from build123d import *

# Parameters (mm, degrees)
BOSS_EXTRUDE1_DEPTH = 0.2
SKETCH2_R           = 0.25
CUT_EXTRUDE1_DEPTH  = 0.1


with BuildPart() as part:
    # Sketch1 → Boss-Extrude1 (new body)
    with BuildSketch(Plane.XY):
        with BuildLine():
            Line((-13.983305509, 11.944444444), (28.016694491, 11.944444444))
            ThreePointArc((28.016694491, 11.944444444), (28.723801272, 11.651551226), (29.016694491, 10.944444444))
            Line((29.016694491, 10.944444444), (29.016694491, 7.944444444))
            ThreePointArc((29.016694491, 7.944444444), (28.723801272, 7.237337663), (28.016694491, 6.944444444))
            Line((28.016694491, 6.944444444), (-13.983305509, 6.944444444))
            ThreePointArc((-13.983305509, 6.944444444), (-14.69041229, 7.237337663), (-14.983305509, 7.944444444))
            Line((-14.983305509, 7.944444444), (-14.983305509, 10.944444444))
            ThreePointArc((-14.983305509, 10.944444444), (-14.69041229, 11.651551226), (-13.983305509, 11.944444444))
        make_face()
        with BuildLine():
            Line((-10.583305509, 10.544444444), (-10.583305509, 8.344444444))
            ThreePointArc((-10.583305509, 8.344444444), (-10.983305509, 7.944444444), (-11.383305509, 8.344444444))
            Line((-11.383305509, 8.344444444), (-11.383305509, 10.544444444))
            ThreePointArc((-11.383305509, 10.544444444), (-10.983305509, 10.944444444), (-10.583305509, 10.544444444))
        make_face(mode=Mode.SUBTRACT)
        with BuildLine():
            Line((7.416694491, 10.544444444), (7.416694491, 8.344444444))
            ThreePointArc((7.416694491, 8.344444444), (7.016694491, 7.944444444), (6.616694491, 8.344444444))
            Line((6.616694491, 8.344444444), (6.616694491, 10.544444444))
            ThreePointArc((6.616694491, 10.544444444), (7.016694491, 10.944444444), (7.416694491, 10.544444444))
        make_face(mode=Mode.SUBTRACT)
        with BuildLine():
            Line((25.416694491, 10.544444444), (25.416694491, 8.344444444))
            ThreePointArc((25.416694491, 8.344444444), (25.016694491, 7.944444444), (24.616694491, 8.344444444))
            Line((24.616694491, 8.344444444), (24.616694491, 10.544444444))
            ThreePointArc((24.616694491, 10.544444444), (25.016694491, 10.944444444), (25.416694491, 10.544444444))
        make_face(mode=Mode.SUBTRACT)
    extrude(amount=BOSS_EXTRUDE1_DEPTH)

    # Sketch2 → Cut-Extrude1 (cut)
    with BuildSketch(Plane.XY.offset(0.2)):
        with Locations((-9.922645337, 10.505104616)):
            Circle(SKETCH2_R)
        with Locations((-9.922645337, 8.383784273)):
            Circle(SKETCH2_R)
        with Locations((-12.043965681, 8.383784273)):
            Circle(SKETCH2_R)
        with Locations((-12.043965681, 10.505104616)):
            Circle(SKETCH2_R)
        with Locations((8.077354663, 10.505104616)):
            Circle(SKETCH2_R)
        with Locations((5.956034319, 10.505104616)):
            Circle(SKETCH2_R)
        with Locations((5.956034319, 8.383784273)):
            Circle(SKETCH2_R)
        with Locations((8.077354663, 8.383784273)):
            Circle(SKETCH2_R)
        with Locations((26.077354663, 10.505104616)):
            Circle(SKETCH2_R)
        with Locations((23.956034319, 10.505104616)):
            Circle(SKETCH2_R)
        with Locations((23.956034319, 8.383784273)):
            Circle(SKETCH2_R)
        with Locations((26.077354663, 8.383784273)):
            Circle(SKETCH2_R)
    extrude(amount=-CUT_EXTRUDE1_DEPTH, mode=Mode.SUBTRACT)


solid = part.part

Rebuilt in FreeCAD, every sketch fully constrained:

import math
import FreeCAD as App
import Part
import Sketcher
Q = App.Units.Quantity

doc = App.newDocument("Part")
body = doc.addObject("PartDesign::Body", "Body")

sketch1 = body.newObject("Sketcher::SketchObject", "Sketch")
sketch1.AttachmentSupport = (doc.getObject("XY_Plane"), [""])
sketch1.MapMode = "FlatFace"
sketch1.addGeometry(Part.LineSegment(App.Vector(28.02, 11.94, 0), App.Vector(-13.98, 11.94, 0)), False)
sketch1.addGeometry(Part.ArcOfCircle(Part.Circle(App.Vector(-13.98, 10.94, 0), App.Vector(0, 0, 1), 1), math.radians(90), math.radians(180)), False)
sketch1.addGeometry(Part.LineSegment(App.Vector(-14.98, 10.94, 0), App.Vector(-14.98, 7.94, 0)), False)
sketch1.addGeometry(Part.ArcOfCircle(Part.Circle(App.Vector(-13.98, 7.94, 0), App.Vector(0, 0, 1), 1), math.radians(-180), math.radians(-90)), False)
sketch1.addGeometry(Part.LineSegment(App.Vector(-13.98, 6.94, 0), App.Vector(28.02, 6.94, 0)), False)
sketch1.addGeometry(Part.ArcOfCircle(Part.Circle(App.Vector(28.02, 7.94, 0), App.Vector(0, 0, 1), 1), math.radians(-90), math.radians(0)), False)
sketch1.addGeometry(Part.LineSegment(App.Vector(29.02, 7.94, 0), App.Vector(29.02, 10.94, 0)), False)
sketch1.addGeometry(Part.ArcOfCircle(Part.Circle(App.Vector(28.02, 10.94, 0), App.Vector(0, 0, 1), 1), math.radians(0), math.radians(90)), False)
sketch1.addGeometry(Part.LineSegment(App.Vector(25.42, 10.54, 0), App.Vector(25.42, 8.34, 0)), False)
sketch1.addGeometry(Part.ArcOfCircle(Part.Circle(App.Vector(25.02, 8.34, 0), App.Vector(0, 0, 1), 0.4), math.radians(180), math.radians(360)), False)
sketch1.addGeometry(Part.LineSegment(App.Vector(24.62, 8.34, 0), App.Vector(24.62, 10.54, 0)), False)
sketch1.addGeometry(Part.ArcOfCircle(Part.Circle(App.Vector(25.02, 10.54, 0), App.Vector(0, 0, 1), 0.4), math.radians(0), math.radians(180)), False)
sketch1.addGeometry(Part.LineSegment(App.Vector(7.42, 10.54, 0), App.Vector(7.42, 8.34, 0)), False)
sketch1.addGeometry(Part.ArcOfCircle(Part.Circle(App.Vector(7.02, 8.34, 0), App.Vector(0, 0, 1), 0.4), math.radians(180), math.radians(360)), False)
sketch1.addGeometry(Part.LineSegment(App.Vector(6.62, 8.34, 0), App.Vector(6.62, 10.54, 0)), False)
sketch1.addGeometry(Part.ArcOfCircle(Part.Circle(App.Vector(7.02, 10.54, 0), App.Vector(0, 0, 1), 0.4), math.radians(0), math.radians(180)), False)
sketch1.addGeometry(Part.LineSegment(App.Vector(-10.58, 10.54, 0), App.Vector(-10.58, 8.34, 0)), False)
sketch1.addGeometry(Part.ArcOfCircle(Part.Circle(App.Vector(-10.98, 8.34, 0), App.Vector(0, 0, 1), 0.4), math.radians(180), math.radians(360)), False)
sketch1.addGeometry(Part.LineSegment(App.Vector(-11.38, 8.34, 0), App.Vector(-11.38, 10.54, 0)), False)
sketch1.addGeometry(Part.ArcOfCircle(Part.Circle(App.Vector(-10.98, 10.54, 0), App.Vector(0, 0, 1), 0.4), math.radians(0), math.radians(180)), False)
sketch1.addConstraint(Sketcher.Constraint("Tangent", 0, 2, 1, 1))
sketch1.addConstraint(Sketcher.Constraint("Tangent", 1, 2, 2, 1))
sketch1.addConstraint(Sketcher.Constraint("Tangent", 2, 2, 3, 1))
sketch1.addConstraint(Sketcher.Constraint("Tangent", 3, 2, 4, 1))
sketch1.addConstraint(Sketcher.Constraint("Tangent", 4, 2, 5, 1))
sketch1.addConstraint(Sketcher.Constraint("Tangent", 5, 2, 6, 1))
sketch1.addConstraint(Sketcher.Constraint("Tangent", 6, 2, 7, 1))
sketch1.addConstraint(Sketcher.Constraint("Tangent", 7, 2, 0, 1))
sketch1.addConstraint(Sketcher.Constraint("Tangent", 8, 2, 9, 2))
sketch1.addConstraint(Sketcher.Constraint("Tangent", 9, 1, 10, 1))
sketch1.addConstraint(Sketcher.Constraint("Tangent", 10, 2, 11, 2))
sketch1.addConstraint(Sketcher.Constraint("Tangent", 11, 1, 8, 1))
sketch1.addConstraint(Sketcher.Constraint("Tangent", 12, 2, 13, 2))
sketch1.addConstraint(Sketcher.Constraint("Tangent", 13, 1, 14, 1))
sketch1.addConstraint(Sketcher.Constraint("Tangent", 14, 2, 15, 2))
sketch1.addConstraint(Sketcher.Constraint("Tangent", 15, 1, 12, 1))
sketch1.addConstraint(Sketcher.Constraint("Tangent", 16, 2, 17, 2))
sketch1.addConstraint(Sketcher.Constraint("Tangent", 17, 1, 18, 1))
sketch1.addConstraint(Sketcher.Constraint("Tangent", 18, 2, 19, 2))
sketch1.addConstraint(Sketcher.Constraint("Tangent", 19, 1, 16, 1))
sketch1.addConstraint(Sketcher.Constraint("Horizontal", 0))
sketch1.addConstraint(Sketcher.Constraint("Vertical", 2))
sketch1.addConstraint(Sketcher.Constraint("Horizontal", 4))
sketch1.addConstraint(Sketcher.Constraint("Vertical", 6))
sketch1.addConstraint(Sketcher.Constraint("Vertical", 8))
sketch1.addConstraint(Sketcher.Constraint("Vertical", 10))
sketch1.addConstraint(Sketcher.Constraint("Vertical", 12))
sketch1.addConstraint(Sketcher.Constraint("Vertical", 14))
sketch1.addConstraint(Sketcher.Constraint("Vertical", 16))
sketch1.addConstraint(Sketcher.Constraint("Vertical", 18))
sketch1.addConstraint(Sketcher.Constraint("Equal", 1, 3))
sketch1.addConstraint(Sketcher.Constraint("Equal", 3, 5))
sketch1.addConstraint(Sketcher.Constraint("Equal", 5, 7))
sketch1.addConstraint(Sketcher.Constraint("Equal", 11, 13))
sketch1.addConstraint(Sketcher.Constraint("Equal", 15, 17))
sketch1.addConstraint(Sketcher.Constraint("Horizontal", 9, 3, 13, 3))
sketch1.addConstraint(Sketcher.Constraint("Horizontal", 11, 3, 15, 3))
sketch1.addConstraint(Sketcher.Constraint("Horizontal", 13, 3, 17, 3))
sketch1.addConstraint(Sketcher.Constraint("Horizontal", 15, 3, 19, 3))
sketch1.addConstraint(Sketcher.Constraint("Radius", 1, Q("1 mm")))
sketch1.addConstraint(Sketcher.Constraint("Radius", 9, Q("0.4 mm")))
sketch1.addConstraint(Sketcher.Constraint("DistanceX", 0, 2, 0, 1, Q("42 mm")))
sketch1.addConstraint(Sketcher.Constraint("DistanceY", 2, 2, 2, 1, Q("3 mm")))
sketch1.addConstraint(Sketcher.Constraint("DistanceY", 8, 2, 8, 1, Q("2.2 mm")))
sketch1.addConstraint(Sketcher.Constraint("DistanceX", 9, 3, 5, 3, Q("3 mm")))
sketch1.addConstraint(Sketcher.Constraint("DistanceX", 13, 3, 9, 3, Q("18 mm")))
sketch1.addConstraint(Sketcher.Constraint("DistanceX", 3, 3, 17, 3, Q("3 mm")))
sketch1.addConstraint(Sketcher.Constraint("DistanceY", 5, 3, 9, 3, Q("0.4 mm")))
sketch1.addConstraint(Sketcher.Constraint("DistanceX", 1, 3, -1, 1, Q("13.983306 mm")))
sketch1.addConstraint(Sketcher.Constraint("DistanceY", -1, 1, 1, 3, Q("10.944444 mm")))
pad1 = body.newObject("PartDesign::Pad", "Pad")
pad1.Profile = sketch1
pad1.Length = 0.2

sketch2 = body.newObject("Sketcher::SketchObject", "Sketch001")
sketch2.AttachmentSupport = (doc.getObject("XY_Plane"), [""])
sketch2.MapMode = "FlatFace"
sketch2.AttachmentOffset = App.Placement(App.Vector(0, 0, 0.2), App.Rotation())
sketch2.addGeometry(Part.Circle(App.Vector(-9.92, 10.51, 0), App.Vector(0, 0, 1), 0.25), False)
sketch2.addGeometry(Part.Circle(App.Vector(-9.92, 8.38, 0), App.Vector(0, 0, 1), 0.25), False)
sketch2.addGeometry(Part.Circle(App.Vector(-12.04, 8.38, 0), App.Vector(0, 0, 1), 0.25), False)
sketch2.addGeometry(Part.Circle(App.Vector(-12.04, 10.51, 0), App.Vector(0, 0, 1), 0.25), False)
sketch2.addGeometry(Part.Circle(App.Vector(8.08, 10.51, 0), App.Vector(0, 0, 1), 0.25), False)
sketch2.addGeometry(Part.Circle(App.Vector(5.96, 10.51, 0), App.Vector(0, 0, 1), 0.25), False)
sketch2.addGeometry(Part.Circle(App.Vector(5.96, 8.38, 0), App.Vector(0, 0, 1), 0.25), False)
sketch2.addGeometry(Part.Circle(App.Vector(8.08, 8.38, 0), App.Vector(0, 0, 1), 0.25), False)
sketch2.addGeometry(Part.Circle(App.Vector(26.08, 10.51, 0), App.Vector(0, 0, 1), 0.25), False)
sketch2.addGeometry(Part.Circle(App.Vector(23.96, 10.51, 0), App.Vector(0, 0, 1), 0.25), False)
sketch2.addGeometry(Part.Circle(App.Vector(23.96, 8.38, 0), App.Vector(0, 0, 1), 0.25), False)
sketch2.addGeometry(Part.Circle(App.Vector(26.08, 8.38, 0), App.Vector(0, 0, 1), 0.25), False)
sketch2.addConstraint(Sketcher.Constraint("Equal", 0, 1))
sketch2.addConstraint(Sketcher.Constraint("Equal", 1, 2))
sketch2.addConstraint(Sketcher.Constraint("Equal", 2, 3))
sketch2.addConstraint(Sketcher.Constraint("Equal", 3, 4))
sketch2.addConstraint(Sketcher.Constraint("Equal", 4, 5))
sketch2.addConstraint(Sketcher.Constraint("Equal", 5, 6))
sketch2.addConstraint(Sketcher.Constraint("Equal", 6, 7))
sketch2.addConstraint(Sketcher.Constraint("Equal", 7, 8))
sketch2.addConstraint(Sketcher.Constraint("Equal", 8, 9))
sketch2.addConstraint(Sketcher.Constraint("Equal", 9, 10))
sketch2.addConstraint(Sketcher.Constraint("Equal", 10, 11))
sketch2.addConstraint(Sketcher.Constraint("Horizontal", 1, 3, 2, 3))
sketch2.addConstraint(Sketcher.Constraint("Horizontal", 0, 3, 3, 3))
sketch2.addConstraint(Sketcher.Constraint("Horizontal", 3, 3, 4, 3))
sketch2.addConstraint(Sketcher.Constraint("Horizontal", 4, 3, 5, 3))
sketch2.addConstraint(Sketcher.Constraint("Horizontal", 2, 3, 6, 3))
sketch2.addConstraint(Sketcher.Constraint("Horizontal", 6, 3, 7, 3))
sketch2.addConstraint(Sketcher.Constraint("Horizontal", 5, 3, 8, 3))
sketch2.addConstraint(Sketcher.Constraint("Horizontal", 8, 3, 9, 3))
sketch2.addConstraint(Sketcher.Constraint("Horizontal", 7, 3, 10, 3))
sketch2.addConstraint(Sketcher.Constraint("Horizontal", 10, 3, 11, 3))
sketch2.addConstraint(Sketcher.Constraint("Vertical", 0, 3, 1, 3))
sketch2.addConstraint(Sketcher.Constraint("Vertical", 2, 3, 3, 3))
sketch2.addConstraint(Sketcher.Constraint("Vertical", 5, 3, 6, 3))
sketch2.addConstraint(Sketcher.Constraint("Vertical", 4, 3, 7, 3))
sketch2.addConstraint(Sketcher.Constraint("Vertical", 9, 3, 10, 3))
sketch2.addConstraint(Sketcher.Constraint("Vertical", 8, 3, 11, 3))
sketch2.addConstraint(Sketcher.Constraint("Diameter", 0, Q("0.5 mm")))
sketch2.addConstraint(Sketcher.Constraint("DistanceX", 0, 3, 4, 3, Q("18 mm")))
sketch2.addConstraint(Sketcher.Constraint("DistanceX", 3, 3, 5, 3, Q("18 mm")))
sketch2.addConstraint(Sketcher.Constraint("DistanceX", 4, 3, 8, 3, Q("18 mm")))
sketch2.addConstraint(Sketcher.Constraint("DistanceX", 5, 3, 9, 3, Q("18 mm")))
sketch2.addConstraint(Sketcher.Constraint("DistanceY", 1, 3, 0, 3, Q("2.12132 mm")))
sketch2.addConstraint(Sketcher.Constraint("DistanceX", 2, 3, 1, 3, Q("2.12132 mm")))
sketch2.addConstraint(Sketcher.Constraint("DistanceX", 0, 3, -1, 1, Q("9.922645 mm")))
sketch2.addConstraint(Sketcher.Constraint("DistanceY", -1, 1, 0, 3, Q("10.505105 mm")))
pocket1 = body.newObject("PartDesign::Pocket", "Pocket")
pocket1.Profile = sketch2
pocket1.Length = 0.1

doc.recompute()
